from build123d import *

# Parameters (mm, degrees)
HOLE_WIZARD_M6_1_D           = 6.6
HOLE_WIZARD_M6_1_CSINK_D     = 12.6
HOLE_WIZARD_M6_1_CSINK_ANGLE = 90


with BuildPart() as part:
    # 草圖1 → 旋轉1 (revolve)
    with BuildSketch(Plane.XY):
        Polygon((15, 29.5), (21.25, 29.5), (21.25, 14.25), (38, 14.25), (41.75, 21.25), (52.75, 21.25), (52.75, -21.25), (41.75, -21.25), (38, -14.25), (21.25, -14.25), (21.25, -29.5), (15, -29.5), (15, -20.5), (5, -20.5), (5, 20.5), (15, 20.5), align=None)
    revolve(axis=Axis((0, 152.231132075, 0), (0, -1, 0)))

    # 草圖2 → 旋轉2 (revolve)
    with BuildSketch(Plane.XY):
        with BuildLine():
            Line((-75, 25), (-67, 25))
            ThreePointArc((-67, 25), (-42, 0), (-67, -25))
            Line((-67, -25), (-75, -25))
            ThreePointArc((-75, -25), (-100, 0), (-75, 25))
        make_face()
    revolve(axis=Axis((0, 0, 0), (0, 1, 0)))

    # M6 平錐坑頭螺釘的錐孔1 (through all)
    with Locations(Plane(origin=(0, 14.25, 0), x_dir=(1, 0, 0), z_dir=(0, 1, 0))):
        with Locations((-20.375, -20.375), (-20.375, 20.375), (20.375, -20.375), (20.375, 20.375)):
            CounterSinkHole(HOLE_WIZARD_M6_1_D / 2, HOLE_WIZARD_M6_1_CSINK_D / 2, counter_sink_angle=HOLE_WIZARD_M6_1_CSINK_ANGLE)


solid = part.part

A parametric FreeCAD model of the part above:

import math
import FreeCAD as App
import Part
import Sketcher

V = App.Vector

doc = App.newDocument("Part")
body = doc.addObject("PartDesign::Body", "Body")

# Sketch on XY plane
sketch1 = body.newObject("Sketcher::SketchObject", "Sketch")
sketch1.AttachmentSupport = (doc.getObject("XY_Plane"), [""])
sketch1.MapMode = "FlatFace"
sketch1.addGeometry([
    Part.LineSegment(V(21, 30, 0), V(15, 30, 0)),  # 0
    Part.LineSegment(V(15, 30, 0), V(15, 20, 0)),  # 1
    Part.LineSegment(V(15, 20, 0), V(5, 20, 0)),  # 2
    Part.LineSegment(V(5, 20, 0), V(5, -20, 0)),  # 3
    Part.LineSegment(V(5, -20, 0), V(15, -20, 0)),  # 4
    Part.LineSegment(V(15, -20, 0), V(15, -30, 0)),  # 5
    Part.LineSegment(V(15, -30, 0), V(21, -30, 0)),  # 6
    Part.LineSegment(V(21, -30, 0), V(21, -14, 0)),  # 7
    Part.LineSegment(V(21, -14, 0), V(38, -14, 0)),  # 8
    Part.LineSegment(V(38, -14, 0), V(42, -21, 0)),  # 9
    Part.LineSegment(V(42, -21, 0), V(53, -21, 0)),  # 10
    Part.LineSegment(V(53, -21, 0), V(53, 21, 0)),  # 11
    Part.LineSegment(V(53, 21, 0), V(42, 21, 0)),  # 12
    Part.LineSegment(V(42, 21, 0), V(38, 14, 0)),  # 13
    Part.LineSegment(V(38, 14, 0), V(21, 14, 0)),  # 14
    Part.LineSegment(V(21, 14, 0), V(21, 30, 0)),  # 15
], False)
sketch1.addConstraint([
    Sketcher.Constraint("Coincident", 0, 2, 1, 1),
    Sketcher.Constraint("Coincident", 1, 2, 2, 1),
    Sketcher.Constraint("Coincident", 2, 2, 3, 1),
    Sketcher.Constraint("Coincident", 3, 2, 4, 1),
    Sketcher.Constraint("Coincident", 4, 2, 5, 1),
    Sketcher.Constraint("Coincident", 5, 2, 6, 1),
    Sketcher.Constraint("Coincident", 6, 2, 7, 1),
    Sketcher.Constraint("Coincident", 7, 2, 8, 1),
    Sketcher.Constraint("Coincident", 8, 2, 9, 1),
    Sketcher.Constraint("Coincident", 9, 2, 10, 1),
    Sketcher.Constraint("Coincident", 10, 2, 11, 1),
    Sketcher.Constraint("Coincident", 11, 2, 12, 1),
    Sketcher.Constraint("Coincident", 12, 2, 13, 1),
    Sketcher.Constraint("Coincident", 13, 2, 14, 1),
    Sketcher.Constraint("Coincident", 14, 2, 15, 1),
    Sketcher.Constraint("Coincident", 15, 2, 0, 1),
    Sketcher.Constraint("Horizontal", 0),
    Sketcher.Constraint("Vertical", 1),
    Sketcher.Constraint("Horizontal", 2),
    Sketcher.Constraint("Vertical", 3),
    Sketcher.Constraint("Horizontal", 4),
    Sketcher.Constraint("Vertical", 5),
    Sketcher.Constraint("Horizontal", 6),
    Sketcher.Constraint("Vertical", 7),
    Sketcher.Constraint("Horizontal", 8),
    Sketcher.Constraint("Horizontal", 10),
    Sketcher.Constraint("Vertical", 11),
    Sketcher.Constraint("Horizontal", 12),
    Sketcher.Constraint("Horizontal", 14),
    Sketcher.Constraint("Vertical", 15),
    Sketcher.Constraint("Symmetric", 1, 2, 4, 2, -1),
    Sketcher.Constraint("Symmetric", 9, 2, 12, 2, -1),
    Sketcher.Constraint("Symmetric", 8, 2, 13, 2, -1),
    Sketcher.Constraint("Symmetric", 6, 2, 15, 2, -1),
    Sketcher.Constraint("DistanceX", 2, 2, 2, 1, 10.0),
    Sketcher.Constraint("DistanceX", 10, 1, 10, 2, 11.0),
    Sketcher.Constraint("DistanceY", 1, 2, 1, 1, 9.0),
    Sketcher.Constraint("DistanceY", 3, 2, 3, 1, 41.0),
    Sketcher.Constraint("DistanceY", 11, 1, 11, 2, 42.5),
    Sketcher.Constraint("DistanceX", -1, 1, 0, 2, 15.0),
    Sketcher.Constraint("DistanceX", -1, 1, 8, 2, 38.0),
    Sketcher.Constraint("DistanceY", 9, 2, 8, 2, 7.0),
    Sketcher.Constraint("DistanceX", 0, 2, 0, 1, 6.25),
    Sketcher.Constraint("DistanceX", 7, 2, 9, 2, 20.5),
])
revolution = body.newObject("PartDesign::Revolution", "Revolution")
revolution.Profile = sketch1
revolution.ReferenceAxis = (sketch1, ["V_Axis"])
revolution.Angle = 360

# Sketch on XY plane
sketch2 = body.newObject("Sketcher::SketchObject", "Sketch001")
sketch2.AttachmentSupport = (doc.getObject("XY_Plane"), [""])
sketch2.MapMode = "FlatFace"
sketch2.addGeometry([
    Part.LineSegment(V(-67, 25, 0), V(-75, 25, 0)),
    Part.ArcOfCircle(Part.Circle(V(-75, 0, 0), V(0, 0, 1), 25), math.radians(90), math.radians(270)),
    Part.LineSegment(V(-75, -25, 0), V(-67, -25, 0)),
    Part.ArcOfCircle(Part.Circle(V(-67, 0, 0), V(0, 0, 1), 25), math.radians(-90), math.radians(90)),
], False)
sketch2.addConstraint([
    Sketcher.Constraint("Tangent", 0, 2, 1, 1),
    Sketcher.Constraint("Tangent", 1, 2, 2, 1),
    Sketcher.Constraint("Tangent", 2, 2, 3, 1),
    Sketcher.Constraint("Tangent", 3, 2, 0, 1),
    Sketcher.Constraint("Horizontal", 0),
    Sketcher.Constraint("Horizontal", 2),
    Sketcher.Constraint("PointOnObject", 1, 3, -1),
    Sketcher.Constraint("Radius", 1, 25.0),
    Sketcher.Constraint("DistanceX", 0, 2, 0, 1, 8.0),
    Sketcher.Constraint("DistanceX", 1, 3, -1, 1, 75.0),
])
revolution2 = body.newObject("PartDesign::Revolution", "Revolution001")
revolution2.Profile = sketch2
revolution2.ReferenceAxis = (sketch2, ["V_Axis"])
revolution2.Angle = 360

# Sketch on XZ plane
sketch3 = body.newObject("Sketcher::SketchObject", "Sketch002")
sketch3.AttachmentSupport = (doc.getObject("XZ_Plane"), [""])
sketch3.MapMode = "FlatFace"
sketch3.AttachmentOffset = App.Placement(V(0, 0, -14.25), App.Rotation())
sketch3.addGeometry([
    Part.Circle(V(-20.4, 20.4, 0), V(0, 0, 1), 3.3),
    Part.Circle(V(-20.4, -20.4, 0), V(0, 0, 1), 3.3),
    Part.Circle(V(20.4, 20.4, 0), V(0, 0, 1), 3.3),
    Part.Circle(V(20.4, -20.4, 0), V(0, 0, 1), 3.3),
], False)
sketch3.addConstraint([
    Sketcher.Constraint("Equal", 0, 1),
    Sketcher.Constraint("Equal", 1, 2),
    Sketcher.Constraint("Equal", 2, 3),
    Sketcher.Constraint("Symmetric", 1, 3, 2, 3, -1, 1),
    Sketcher.Constraint("Symmetric", 0, 3, 3, 3, -1, 1),
    Sketcher.Constraint("Symmetric", 0, 3, 2, 3, -2),
    Sketcher.Constraint("Diameter", 0, 6.6),
    Sketcher.Constraint("DistanceY", 1, 3, 0, 3, 40.75),
    Sketcher.Constraint("DistanceX", 0, 3, 2, 3, 40.75),
])
doc.recompute()
hole = body.newObject("PartDesign::Hole", "Hole")
hole.Profile = sketch3
hole.ThreadType = "None"
hole.Diameter = 6.6
hole.DepthType = "ThroughAll"
hole.HoleCutType = "Countersink"
hole.HoleCutDiameter = 12.6
hole.HoleCutCountersinkAngle = 90
hole.Reversed = True

doc.recompute()
